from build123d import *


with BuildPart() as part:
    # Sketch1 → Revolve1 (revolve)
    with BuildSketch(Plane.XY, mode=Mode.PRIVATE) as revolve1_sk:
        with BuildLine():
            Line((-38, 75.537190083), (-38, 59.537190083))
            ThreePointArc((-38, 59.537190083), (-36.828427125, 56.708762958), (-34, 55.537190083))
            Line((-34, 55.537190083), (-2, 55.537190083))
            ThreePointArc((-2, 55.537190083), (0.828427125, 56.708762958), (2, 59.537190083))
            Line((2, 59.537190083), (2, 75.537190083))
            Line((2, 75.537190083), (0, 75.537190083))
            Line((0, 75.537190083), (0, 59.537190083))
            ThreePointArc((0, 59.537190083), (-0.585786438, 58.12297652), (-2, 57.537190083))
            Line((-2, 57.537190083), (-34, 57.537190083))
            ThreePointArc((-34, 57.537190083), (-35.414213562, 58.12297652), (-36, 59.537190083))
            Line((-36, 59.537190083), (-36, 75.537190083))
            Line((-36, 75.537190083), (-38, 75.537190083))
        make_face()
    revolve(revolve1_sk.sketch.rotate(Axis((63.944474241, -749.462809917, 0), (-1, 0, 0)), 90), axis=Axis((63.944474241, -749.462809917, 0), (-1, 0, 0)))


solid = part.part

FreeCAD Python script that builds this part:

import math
import FreeCAD as App
import Part
import Sketcher

V = App.Vector

doc = App.newDocument("Part")
params = doc.addObject("Spreadsheet::Sheet", "Params")
for row, (alias, value) in enumerate([
    ("sketch1_radius", "4 mm"),
    ("sketch1_radius2", "2 mm"),
    ("sketch1_width", "32 mm"),
    ("sketch1_height", "16 mm"),
    ("revolution_angle", "360 deg"),
], start=1):
    params.set(f"A{row}", alias)
    params.set(f"B{row}", "=" + value)
    params.setAlias(f"B{row}", alias)

body = doc.addObject("PartDesign::Body", "Body")

sketch1 = body.newObject("Sketcher::SketchObject", "Sketch")
sketch1.AttachmentSupport = (doc.getObject("XY_Plane"), [""])
sketch1.MapMode = "FlatFace"
sketch1.addGeometry([
    Part.LineSegment(V(-38, 75.5, 0), V(-38, 59.5, 0)),
    Part.ArcOfCircle(Part.Circle(V(-34, 59.5, 0), V(0, 0, 1), 4), math.radians(180), math.radians(270)),
    Part.LineSegment(V(-34, 55.5, 0), V(-2, 55.5, 0)),
    Part.ArcOfCircle(Part.Circle(V(-2, 59.5, 0), V(0, 0, 1), 4), math.radians(-90), math.radians(0)),
    Part.LineSegment(V(2, 59.5, 0), V(2, 75.5, 0)),
    Part.LineSegment(V(2, 75.5, 0), V(0, 75.5, 0)),
    Part.LineSegment(V(0, 75.5, 0), V(0, 59.5, 0)),
    Part.ArcOfCircle(Part.Circle(V(-2, 59.5, 0), V(0, 0, 1), 2), math.radians(-90), math.radians(0)),
    Part.LineSegment(V(-2, 57.5, 0), V(-34, 57.5, 0)),
    Part.ArcOfCircle(Part.Circle(V(-34, 59.5, 0), V(0, 0, 1), 2), math.radians(180), math.radians(270)),
    Part.LineSegment(V(-36, 59.5, 0), V(-36, 75.5, 0)),
    Part.LineSegment(V(-36, 75.5, 0), V(-38, 75.5, 0)),
], False)
sketch1.addGeometry(Part.LineSegment(V(2, -749.5, 0), V(-38, -749.5, 0)), True)
sketch1.addConstraint([
    Sketcher.Constraint("Tangent", 0, 2, 1, 1),
    Sketcher.Constraint("Tangent", 1, 2, 2, 1),
    Sketcher.Constraint("Tangent", 2, 2, 3, 1),
    Sketcher.Constraint("Tangent", 3, 2, 4, 1),
    Sketcher.Constraint("Coincident", 4, 2, 5, 1),
    Sketcher.Constraint("Coincident", 5, 2, 6, 1),
    Sketcher.Constraint("Tangent", 6, 2, 7, 2),
    Sketcher.Constraint("Tangent", 7, 1, 8, 1),
    Sketcher.Constraint("Tangent", 8, 2, 9, 2),
    Sketcher.Constraint("Tangent", 9, 1, 10, 1),
    Sketcher.Constraint("Coincident", 10, 2, 11, 1),
    Sketcher.Constraint("Coincident", 11, 2, 0, 1),
    Sketcher.Constraint("Vertical", 0),
    Sketcher.Constraint("Horizontal", 2),
    Sketcher.Constraint("Vertical", 4),
    Sketcher.Constraint("Horizontal", 5),
    Sketcher.Constraint("Vertical", 6),
    Sketcher.Constraint("Horizontal", 8),
    Sketcher.Constraint("Vertical", 10),
    Sketcher.Constraint("Horizontal", 11),
    Sketcher.Constraint("Horizontal", 12),
    Sketcher.Constraint("Coincident", 7, 3, 3, 3),
    Sketcher.Constraint("Coincident", 9, 3, 1, 3),
    Sketcher.Constraint("Equal", 1, 3),
    Sketcher.Constraint("PointOnObject", 5, 2, -2),
    Sketcher.Constraint("Horizontal", 5, 2, 10, 2),
    Sketcher.Constraint("Vertical", 4, 2, 12, 1),
    Sketcher.Constraint("Vertical", 11, 2, 12, 2),
    Sketcher.Constraint("Radius", 1, 4.0),
    Sketcher.Constraint("Radius", 7, 2.0),
    Sketcher.Constraint("DistanceX", 2, 1, 2, 2, 32.0),
    Sketcher.Constraint("DistanceY", 0, 2, 0, 1, 16.0),
    Sketcher.Constraint("DistanceY", 12, 1, 2, 2, 805.0),
    Sketcher.Constraint("DistanceY", -1, 1, 1, 3, 59.53719),
])
sketch1.setExpression("Constraints[28]", "Params.sketch1_radius")
sketch1.setExpression("Constraints[29]", "Params.sketch1_radius2")
sketch1.setExpression("Constraints[30]", "Params.sketch1_width")
sketch1.setExpression("Constraints[31]", "Params.sketch1_height")
revolution = body.newObject("PartDesign::Revolution", "Revolution")
revolution.Profile = sketch1
revolution.ReferenceAxis = (sketch1, ["Axis0"])
revolution.setExpression("Angle", "Params.revolution_angle")

doc.recompute()
